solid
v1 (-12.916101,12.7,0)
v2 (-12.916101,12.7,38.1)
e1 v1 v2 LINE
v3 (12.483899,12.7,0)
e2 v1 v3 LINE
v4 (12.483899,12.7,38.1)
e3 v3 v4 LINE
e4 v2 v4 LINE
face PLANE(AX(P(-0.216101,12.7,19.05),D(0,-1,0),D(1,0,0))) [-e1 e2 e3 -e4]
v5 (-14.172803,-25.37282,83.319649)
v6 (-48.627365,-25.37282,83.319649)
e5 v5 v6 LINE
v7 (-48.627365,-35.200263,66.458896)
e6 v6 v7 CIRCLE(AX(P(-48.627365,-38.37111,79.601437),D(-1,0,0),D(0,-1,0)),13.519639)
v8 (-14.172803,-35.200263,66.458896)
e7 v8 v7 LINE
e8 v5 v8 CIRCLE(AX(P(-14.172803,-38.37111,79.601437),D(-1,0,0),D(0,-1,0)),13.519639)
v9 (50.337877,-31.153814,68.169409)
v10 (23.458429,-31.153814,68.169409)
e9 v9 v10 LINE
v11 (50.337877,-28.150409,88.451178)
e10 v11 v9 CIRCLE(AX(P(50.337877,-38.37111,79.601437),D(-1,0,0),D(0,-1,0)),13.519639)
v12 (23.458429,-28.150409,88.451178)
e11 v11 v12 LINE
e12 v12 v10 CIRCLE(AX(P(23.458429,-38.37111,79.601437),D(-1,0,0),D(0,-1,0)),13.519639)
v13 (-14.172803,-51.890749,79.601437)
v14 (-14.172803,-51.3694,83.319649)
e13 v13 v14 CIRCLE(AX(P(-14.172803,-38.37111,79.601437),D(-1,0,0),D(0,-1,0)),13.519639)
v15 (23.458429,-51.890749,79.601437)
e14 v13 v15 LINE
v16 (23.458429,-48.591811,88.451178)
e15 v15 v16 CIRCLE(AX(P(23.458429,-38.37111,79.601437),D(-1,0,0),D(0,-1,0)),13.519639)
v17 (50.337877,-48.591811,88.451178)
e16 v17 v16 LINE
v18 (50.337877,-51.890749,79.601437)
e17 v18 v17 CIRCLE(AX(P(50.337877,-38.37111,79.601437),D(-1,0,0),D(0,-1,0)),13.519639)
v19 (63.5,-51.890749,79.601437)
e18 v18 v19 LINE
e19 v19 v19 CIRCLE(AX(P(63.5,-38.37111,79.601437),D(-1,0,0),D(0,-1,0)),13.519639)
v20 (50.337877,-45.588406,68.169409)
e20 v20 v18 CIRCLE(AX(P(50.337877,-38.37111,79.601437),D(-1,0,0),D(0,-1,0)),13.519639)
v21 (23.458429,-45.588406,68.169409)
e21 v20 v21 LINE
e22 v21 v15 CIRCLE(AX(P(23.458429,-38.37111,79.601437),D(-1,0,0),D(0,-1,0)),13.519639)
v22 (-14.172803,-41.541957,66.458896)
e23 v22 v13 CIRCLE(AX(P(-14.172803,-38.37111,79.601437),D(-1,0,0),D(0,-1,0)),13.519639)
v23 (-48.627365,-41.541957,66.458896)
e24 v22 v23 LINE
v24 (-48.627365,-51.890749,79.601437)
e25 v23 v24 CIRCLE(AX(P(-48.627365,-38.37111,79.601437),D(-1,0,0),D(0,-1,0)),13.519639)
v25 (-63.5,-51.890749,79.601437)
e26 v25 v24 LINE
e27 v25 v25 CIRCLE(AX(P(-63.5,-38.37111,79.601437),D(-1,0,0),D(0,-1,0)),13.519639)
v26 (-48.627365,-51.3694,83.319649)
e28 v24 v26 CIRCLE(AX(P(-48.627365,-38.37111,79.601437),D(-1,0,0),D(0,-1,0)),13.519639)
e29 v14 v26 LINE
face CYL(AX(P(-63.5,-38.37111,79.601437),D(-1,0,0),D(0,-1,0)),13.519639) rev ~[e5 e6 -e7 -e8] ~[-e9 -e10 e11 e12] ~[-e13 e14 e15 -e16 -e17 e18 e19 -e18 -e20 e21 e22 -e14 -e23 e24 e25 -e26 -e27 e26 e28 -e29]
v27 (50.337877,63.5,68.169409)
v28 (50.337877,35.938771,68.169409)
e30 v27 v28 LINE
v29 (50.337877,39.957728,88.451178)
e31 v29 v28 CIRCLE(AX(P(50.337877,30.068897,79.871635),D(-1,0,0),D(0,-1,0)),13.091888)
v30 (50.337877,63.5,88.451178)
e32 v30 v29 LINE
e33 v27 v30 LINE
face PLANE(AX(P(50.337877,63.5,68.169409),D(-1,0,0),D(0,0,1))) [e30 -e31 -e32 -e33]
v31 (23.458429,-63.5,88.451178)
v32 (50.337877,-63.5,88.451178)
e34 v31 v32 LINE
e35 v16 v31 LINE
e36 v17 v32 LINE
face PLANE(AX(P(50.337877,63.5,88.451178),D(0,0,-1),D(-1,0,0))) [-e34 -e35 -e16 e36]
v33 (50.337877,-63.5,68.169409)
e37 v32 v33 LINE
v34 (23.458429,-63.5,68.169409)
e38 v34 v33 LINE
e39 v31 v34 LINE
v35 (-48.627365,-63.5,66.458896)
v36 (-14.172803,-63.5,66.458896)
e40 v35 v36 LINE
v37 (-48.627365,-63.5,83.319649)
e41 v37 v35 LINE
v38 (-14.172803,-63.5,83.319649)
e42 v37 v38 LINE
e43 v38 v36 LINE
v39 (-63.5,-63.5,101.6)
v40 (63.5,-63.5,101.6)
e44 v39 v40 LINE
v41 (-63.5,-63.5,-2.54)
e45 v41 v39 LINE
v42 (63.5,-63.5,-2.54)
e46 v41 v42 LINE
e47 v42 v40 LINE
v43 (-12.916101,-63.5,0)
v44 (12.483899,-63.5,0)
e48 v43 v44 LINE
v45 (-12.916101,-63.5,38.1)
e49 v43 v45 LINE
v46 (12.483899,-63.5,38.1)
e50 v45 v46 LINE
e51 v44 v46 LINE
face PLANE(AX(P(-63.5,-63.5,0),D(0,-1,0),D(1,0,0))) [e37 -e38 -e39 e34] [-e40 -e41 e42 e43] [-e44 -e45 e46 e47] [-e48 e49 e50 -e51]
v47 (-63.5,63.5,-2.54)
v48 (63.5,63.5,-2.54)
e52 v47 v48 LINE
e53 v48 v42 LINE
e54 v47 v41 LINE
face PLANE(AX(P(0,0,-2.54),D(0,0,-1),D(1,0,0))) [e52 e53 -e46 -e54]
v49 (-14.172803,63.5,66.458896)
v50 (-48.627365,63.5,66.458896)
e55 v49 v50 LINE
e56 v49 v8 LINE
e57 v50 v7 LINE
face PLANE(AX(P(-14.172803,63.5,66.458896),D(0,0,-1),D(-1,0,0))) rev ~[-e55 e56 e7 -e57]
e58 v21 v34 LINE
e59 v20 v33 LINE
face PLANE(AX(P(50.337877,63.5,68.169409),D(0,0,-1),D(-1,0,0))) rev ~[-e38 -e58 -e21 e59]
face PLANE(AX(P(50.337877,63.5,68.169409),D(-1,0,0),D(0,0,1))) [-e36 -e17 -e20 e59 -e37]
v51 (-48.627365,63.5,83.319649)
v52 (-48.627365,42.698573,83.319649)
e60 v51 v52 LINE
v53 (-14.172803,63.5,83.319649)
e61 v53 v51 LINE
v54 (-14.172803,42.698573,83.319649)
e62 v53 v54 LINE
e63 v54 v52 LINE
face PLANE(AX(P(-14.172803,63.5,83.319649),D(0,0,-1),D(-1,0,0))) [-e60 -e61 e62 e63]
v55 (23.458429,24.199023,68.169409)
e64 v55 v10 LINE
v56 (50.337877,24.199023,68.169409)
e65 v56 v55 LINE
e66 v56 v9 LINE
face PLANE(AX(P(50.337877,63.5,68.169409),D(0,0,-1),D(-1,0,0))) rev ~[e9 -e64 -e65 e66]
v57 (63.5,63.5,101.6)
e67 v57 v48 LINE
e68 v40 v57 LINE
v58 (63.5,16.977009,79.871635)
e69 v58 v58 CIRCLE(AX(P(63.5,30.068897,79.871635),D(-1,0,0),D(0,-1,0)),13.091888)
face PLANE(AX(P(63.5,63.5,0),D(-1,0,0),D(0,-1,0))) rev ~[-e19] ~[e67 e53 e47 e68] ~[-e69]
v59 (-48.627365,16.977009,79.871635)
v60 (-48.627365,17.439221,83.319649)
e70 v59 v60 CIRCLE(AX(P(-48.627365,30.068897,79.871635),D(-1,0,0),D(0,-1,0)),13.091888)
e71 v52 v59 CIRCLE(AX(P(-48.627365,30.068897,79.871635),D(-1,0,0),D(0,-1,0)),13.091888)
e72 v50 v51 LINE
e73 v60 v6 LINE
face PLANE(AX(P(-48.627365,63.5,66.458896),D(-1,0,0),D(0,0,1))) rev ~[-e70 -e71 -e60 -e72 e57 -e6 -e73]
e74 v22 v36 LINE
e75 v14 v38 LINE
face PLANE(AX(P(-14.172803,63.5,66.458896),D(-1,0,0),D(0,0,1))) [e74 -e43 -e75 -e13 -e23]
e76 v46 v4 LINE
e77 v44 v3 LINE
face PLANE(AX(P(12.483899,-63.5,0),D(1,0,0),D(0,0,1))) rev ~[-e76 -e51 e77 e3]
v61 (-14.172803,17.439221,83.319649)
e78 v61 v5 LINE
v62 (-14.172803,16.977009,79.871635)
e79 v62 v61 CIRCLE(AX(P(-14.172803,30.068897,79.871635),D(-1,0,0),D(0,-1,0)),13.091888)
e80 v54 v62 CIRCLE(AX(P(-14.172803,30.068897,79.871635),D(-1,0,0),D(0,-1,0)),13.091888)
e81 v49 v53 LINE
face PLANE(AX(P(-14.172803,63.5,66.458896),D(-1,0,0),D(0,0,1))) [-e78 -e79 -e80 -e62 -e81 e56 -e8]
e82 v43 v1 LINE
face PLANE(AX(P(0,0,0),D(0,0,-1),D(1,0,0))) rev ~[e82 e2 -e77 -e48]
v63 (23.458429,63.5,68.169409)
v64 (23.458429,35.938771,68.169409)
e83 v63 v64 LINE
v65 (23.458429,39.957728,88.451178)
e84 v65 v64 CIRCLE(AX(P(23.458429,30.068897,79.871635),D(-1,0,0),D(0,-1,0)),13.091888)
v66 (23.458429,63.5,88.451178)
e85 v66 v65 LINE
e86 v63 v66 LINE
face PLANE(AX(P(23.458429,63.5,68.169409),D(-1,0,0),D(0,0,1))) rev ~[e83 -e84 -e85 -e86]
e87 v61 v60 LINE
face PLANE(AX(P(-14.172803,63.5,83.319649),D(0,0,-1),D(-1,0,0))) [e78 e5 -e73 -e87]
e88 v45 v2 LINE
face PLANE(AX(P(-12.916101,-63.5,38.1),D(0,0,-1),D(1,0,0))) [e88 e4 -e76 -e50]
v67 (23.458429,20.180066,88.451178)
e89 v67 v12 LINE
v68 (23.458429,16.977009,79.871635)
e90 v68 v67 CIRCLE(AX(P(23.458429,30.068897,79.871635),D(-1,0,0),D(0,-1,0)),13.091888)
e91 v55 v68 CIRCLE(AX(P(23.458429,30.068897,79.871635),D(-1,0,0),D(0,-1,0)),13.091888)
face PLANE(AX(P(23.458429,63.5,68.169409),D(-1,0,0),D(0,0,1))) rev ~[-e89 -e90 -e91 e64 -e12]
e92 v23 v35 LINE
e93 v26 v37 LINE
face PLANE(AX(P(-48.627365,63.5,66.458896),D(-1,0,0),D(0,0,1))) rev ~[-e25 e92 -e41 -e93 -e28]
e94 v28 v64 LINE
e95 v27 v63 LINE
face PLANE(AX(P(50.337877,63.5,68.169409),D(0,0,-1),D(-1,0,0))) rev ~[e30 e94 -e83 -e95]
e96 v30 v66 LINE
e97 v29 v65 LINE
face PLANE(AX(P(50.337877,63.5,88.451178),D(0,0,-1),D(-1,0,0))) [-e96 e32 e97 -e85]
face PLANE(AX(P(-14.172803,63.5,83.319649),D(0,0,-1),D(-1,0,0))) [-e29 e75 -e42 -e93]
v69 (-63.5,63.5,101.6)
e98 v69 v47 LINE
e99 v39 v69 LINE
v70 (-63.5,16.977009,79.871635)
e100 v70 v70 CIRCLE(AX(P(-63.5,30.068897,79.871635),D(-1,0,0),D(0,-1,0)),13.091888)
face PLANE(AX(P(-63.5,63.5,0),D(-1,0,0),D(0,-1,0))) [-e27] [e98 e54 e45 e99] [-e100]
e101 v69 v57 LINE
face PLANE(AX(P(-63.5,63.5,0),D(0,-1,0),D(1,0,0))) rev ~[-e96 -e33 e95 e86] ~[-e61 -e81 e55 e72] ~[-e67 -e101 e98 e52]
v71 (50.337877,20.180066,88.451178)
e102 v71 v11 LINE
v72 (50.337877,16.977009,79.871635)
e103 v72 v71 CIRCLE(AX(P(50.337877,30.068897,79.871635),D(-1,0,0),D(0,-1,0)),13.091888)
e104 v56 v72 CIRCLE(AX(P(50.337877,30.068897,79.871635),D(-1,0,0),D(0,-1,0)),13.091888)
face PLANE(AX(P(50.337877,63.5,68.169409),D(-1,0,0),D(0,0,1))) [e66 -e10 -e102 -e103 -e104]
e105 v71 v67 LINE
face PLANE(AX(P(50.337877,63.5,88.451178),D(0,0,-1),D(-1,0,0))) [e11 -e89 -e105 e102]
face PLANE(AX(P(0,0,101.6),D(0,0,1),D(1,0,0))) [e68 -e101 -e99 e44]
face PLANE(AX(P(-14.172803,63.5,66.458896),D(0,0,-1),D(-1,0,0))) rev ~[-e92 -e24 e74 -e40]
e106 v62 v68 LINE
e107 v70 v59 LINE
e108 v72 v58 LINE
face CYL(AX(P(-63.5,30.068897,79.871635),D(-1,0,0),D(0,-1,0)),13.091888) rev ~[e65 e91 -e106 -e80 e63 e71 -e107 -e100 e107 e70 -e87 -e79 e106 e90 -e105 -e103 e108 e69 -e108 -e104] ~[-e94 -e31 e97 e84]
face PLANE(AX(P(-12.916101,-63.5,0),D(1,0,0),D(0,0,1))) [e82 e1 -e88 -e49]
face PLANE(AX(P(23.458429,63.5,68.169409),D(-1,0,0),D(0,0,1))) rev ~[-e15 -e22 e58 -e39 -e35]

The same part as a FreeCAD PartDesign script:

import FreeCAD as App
import Part
import Sketcher
from FreeCAD import Vector
Q = App.Units.Quantity


def add_polygon(sketch, points):
    """Adds a closed chain of lines whose ends are joined by coincident constraints."""
    first, n = sketch.GeometryCount, len(points)
    for a, b in zip(points, points[1:] + points[:1]):
        sketch.addGeometry(Part.LineSegment(App.Vector(*a, 0), App.Vector(*b, 0)), False)
    for i in range(n):
        sketch.addConstraint(Sketcher.Constraint("Coincident", first + i, 2, first + (i + 1) % n, 1))

doc = App.newDocument("Part")
body = doc.addObject("PartDesign::Body", "Body")

# Sketch on XY plane
sketch1 = body.newObject("Sketcher::SketchObject", "Sketch")
sketch1.AttachmentSupport = (doc.getObject("XY_Plane"), [""])
sketch1.MapMode = "FlatFace"
add_polygon(sketch1, [(-64, 64), (-64, -64), (64, -64), (64, 64)])  # lines 0-3
sketch1.addConstraint(Sketcher.Constraint("Vertical", 0))
sketch1.addConstraint(Sketcher.Constraint("Horizontal", 1))
sketch1.addConstraint(Sketcher.Constraint("Vertical", 2))
sketch1.addConstraint(Sketcher.Constraint("Horizontal", 3))
sketch1.addConstraint(Sketcher.Constraint("Symmetric", 0, 2, 2, 2, -1, 1))
sketch1.addConstraint(Sketcher.Constraint("Equal", 3, 0))
sketch1.addConstraint(Sketcher.Constraint("DistanceX", 1, 1, 1, 2, Q("5 in")))
pad1 = body.newObject("PartDesign::Pad", "Pad")
pad1.Profile = sketch1
pad1.Length = Q("4 in")

# Sketch on XZ plane
sketch2 = body.newObject("Sketcher::SketchObject", "Sketch001")
sketch2.AttachmentSupport = (doc.getObject("XZ_Plane"), [""])
sketch2.MapMode = "FlatFace"
sketch2.AttachmentOffset = App.Placement(Vector(0, 0, 2.5 * 25.4), App.Rotation())
add_polygon(sketch2, [(-13, 38), (-13, 0), (12, 0), (12, 38)])  # lines 0-3
sketch2.addConstraint(Sketcher.Constraint("Vertical", 0))
sketch2.addConstraint(Sketcher.Constraint("Horizontal", 1))
sketch2.addConstraint(Sketcher.Constraint("Vertical", 2))
sketch2.addConstraint(Sketcher.Constraint("Horizontal", 3))
sketch2.addConstraint(Sketcher.Constraint("PointOnObject", 0, 2, -1))
sketch2.addConstraint(Sketcher.Constraint("DistanceX", 1, 1, 1, 2, Q("1 in")))
sketch2.addConstraint(Sketcher.Constraint("DistanceY", 0, 2, 0, 1, Q("1.5 in")))
sketch2.addConstraint(Sketcher.Constraint("DistanceX", 0, 2, -1, 1, Q("12.916101 mm")))
pocket1 = body.newObject("PartDesign::Pocket", "Pocket")
pocket1.Profile = sketch2
pocket1.Length = Q("3 in")

# Sketch on XY plane
sketch3 = body.newObject("Sketcher::SketchObject", "Sketch002")
sketch3.AttachmentSupport = (doc.getObject("XY_Plane"), [""])
sketch3.MapMode = "FlatFace"
add_polygon(sketch3, [(-64, -64), (-64, 64), (64, 64), (64, -64)])  # lines 0-3
sketch3.addConstraint(Sketcher.Constraint("Vertical", 0))
sketch3.addConstraint(Sketcher.Constraint("Horizontal", 1))
sketch3.addConstraint(Sketcher.Constraint("Vertical", 2))
sketch3.addConstraint(Sketcher.Constraint("Horizontal", 3))
sketch3.addConstraint(Sketcher.Constraint("Symmetric", 0, 2, 2, 2, -1, 1))
sketch3.addConstraint(Sketcher.Constraint("Equal", 3, 0))
sketch3.addConstraint(Sketcher.Constraint("DistanceX", 1, 1, 1, 2, Q("5 in")))
pad2 = body.newObject("PartDesign::Pad", "Pad001")
pad2.Profile = sketch3
pad2.Length = Q("0.1 in")
pad2.Reversed = True

# Sketch on XZ plane
sketch4 = body.newObject("Sketcher::SketchObject", "Sketch003")
sketch4.AttachmentSupport = (doc.getObject("XZ_Plane"), [""])
sketch4.MapMode = "FlatFace"
sketch4.AttachmentOffset = App.Placement(Vector(0, 0, -2.5 * 25.4), App.Rotation())
add_polygon(sketch4, [(-14, 83), (-14, 66), (-49, 66), (-49, 83)])  # lines 0-3
add_polygon(sketch4, [(50, 88), (50, 68), (23, 68), (23, 88)])  # lines 4-7
sketch4.addConstraint(Sketcher.Constraint("Vertical", 0))
sketch4.addConstraint(Sketcher.Constraint("Horizontal", 1))
sketch4.addConstraint(Sketcher.Constraint("Vertical", 2))
sketch4.addConstraint(Sketcher.Constraint("Horizontal", 3))
sketch4.addConstraint(Sketcher.Constraint("Vertical", 4))
sketch4.addConstraint(Sketcher.Constraint("Horizontal", 5))
sketch4.addConstraint(Sketcher.Constraint("Vertical", 6))
sketch4.addConstraint(Sketcher.Constraint("Horizontal", 7))
sketch4.addConstraint(Sketcher.Constraint("DistanceX", 1, 2, 1, 1, Q("34.454562 mm")))
sketch4.addConstraint(Sketcher.Constraint("DistanceX", 5, 2, 5, 1, Q("26.879448 mm")))
sketch4.addConstraint(Sketcher.Constraint("DistanceY", 4, 2, 4, 1, Q("20.281769 mm")))
sketch4.addConstraint(Sketcher.Constraint("DistanceY", 0, 2, 0, 1, Q("16.860753 mm")))
sketch4.addConstraint(Sketcher.Constraint("DistanceY", -1, 1, 2, 2, Q("83.319649 mm")))
sketch4.addConstraint(Sketcher.Constraint("DistanceY", -1, 1, 4, 2, Q("68.169409 mm")))
sketch4.addConstraint(Sketcher.Constraint("DistanceX", -1, 1, 5, 2, Q("23.458429 mm")))
sketch4.addConstraint(Sketcher.Constraint("DistanceX", 0, 2, 4, 2, Q("64.51068 mm")))
pocket2 = body.newObject("PartDesign::Pocket", "Pocket001")
pocket2.Profile = sketch4
pocket2.Type = "ThroughAll"
pocket2.Reversed = True

# Sketch on YZ plane
sketch5 = body.newObject("Sketcher::SketchObject", "Sketch004")
sketch5.AttachmentSupport = (doc.getObject("YZ_Plane"), [""])
sketch5.MapMode = "FlatFace"
sketch5.AttachmentOffset = App.Placement(Vector(0, 0, -2.5 * 25.4), App.Rotation())
sketch5.addGeometry(Part.Circle(Vector(30, 80, 0), Vector(0, 0, 1), 13), False)
sketch5.addGeometry(Part.Circle(Vector(-38, 80, 0), Vector(0, 0, 1), 14), False)
sketch5.addConstraint(Sketcher.Constraint("Diameter", 0, Q("26.183776 mm")))
sketch5.addConstraint(Sketcher.Constraint("Diameter", 1, Q("27.039278 mm")))
sketch5.addConstraint(Sketcher.Constraint("DistanceX", 1, 3, -1, 1, Q("38.37111 mm")))
sketch5.addConstraint(Sketcher.Constraint("DistanceX", -1, 1, 0, 3, Q("30.068897 mm")))
sketch5.addConstraint(Sketcher.Constraint("DistanceY", -1, 1, 0, 3, Q("79.871635 mm")))
sketch5.addConstraint(Sketcher.Constraint("DistanceY", -1, 1, 1, 3, Q("79.601437 mm")))
pocket3 = body.newObject("PartDesign::Pocket", "Pocket002")
pocket3.Profile = sketch5
pocket3.Type = "ThroughAll"
pocket3.Reversed = True

doc.recompute()
